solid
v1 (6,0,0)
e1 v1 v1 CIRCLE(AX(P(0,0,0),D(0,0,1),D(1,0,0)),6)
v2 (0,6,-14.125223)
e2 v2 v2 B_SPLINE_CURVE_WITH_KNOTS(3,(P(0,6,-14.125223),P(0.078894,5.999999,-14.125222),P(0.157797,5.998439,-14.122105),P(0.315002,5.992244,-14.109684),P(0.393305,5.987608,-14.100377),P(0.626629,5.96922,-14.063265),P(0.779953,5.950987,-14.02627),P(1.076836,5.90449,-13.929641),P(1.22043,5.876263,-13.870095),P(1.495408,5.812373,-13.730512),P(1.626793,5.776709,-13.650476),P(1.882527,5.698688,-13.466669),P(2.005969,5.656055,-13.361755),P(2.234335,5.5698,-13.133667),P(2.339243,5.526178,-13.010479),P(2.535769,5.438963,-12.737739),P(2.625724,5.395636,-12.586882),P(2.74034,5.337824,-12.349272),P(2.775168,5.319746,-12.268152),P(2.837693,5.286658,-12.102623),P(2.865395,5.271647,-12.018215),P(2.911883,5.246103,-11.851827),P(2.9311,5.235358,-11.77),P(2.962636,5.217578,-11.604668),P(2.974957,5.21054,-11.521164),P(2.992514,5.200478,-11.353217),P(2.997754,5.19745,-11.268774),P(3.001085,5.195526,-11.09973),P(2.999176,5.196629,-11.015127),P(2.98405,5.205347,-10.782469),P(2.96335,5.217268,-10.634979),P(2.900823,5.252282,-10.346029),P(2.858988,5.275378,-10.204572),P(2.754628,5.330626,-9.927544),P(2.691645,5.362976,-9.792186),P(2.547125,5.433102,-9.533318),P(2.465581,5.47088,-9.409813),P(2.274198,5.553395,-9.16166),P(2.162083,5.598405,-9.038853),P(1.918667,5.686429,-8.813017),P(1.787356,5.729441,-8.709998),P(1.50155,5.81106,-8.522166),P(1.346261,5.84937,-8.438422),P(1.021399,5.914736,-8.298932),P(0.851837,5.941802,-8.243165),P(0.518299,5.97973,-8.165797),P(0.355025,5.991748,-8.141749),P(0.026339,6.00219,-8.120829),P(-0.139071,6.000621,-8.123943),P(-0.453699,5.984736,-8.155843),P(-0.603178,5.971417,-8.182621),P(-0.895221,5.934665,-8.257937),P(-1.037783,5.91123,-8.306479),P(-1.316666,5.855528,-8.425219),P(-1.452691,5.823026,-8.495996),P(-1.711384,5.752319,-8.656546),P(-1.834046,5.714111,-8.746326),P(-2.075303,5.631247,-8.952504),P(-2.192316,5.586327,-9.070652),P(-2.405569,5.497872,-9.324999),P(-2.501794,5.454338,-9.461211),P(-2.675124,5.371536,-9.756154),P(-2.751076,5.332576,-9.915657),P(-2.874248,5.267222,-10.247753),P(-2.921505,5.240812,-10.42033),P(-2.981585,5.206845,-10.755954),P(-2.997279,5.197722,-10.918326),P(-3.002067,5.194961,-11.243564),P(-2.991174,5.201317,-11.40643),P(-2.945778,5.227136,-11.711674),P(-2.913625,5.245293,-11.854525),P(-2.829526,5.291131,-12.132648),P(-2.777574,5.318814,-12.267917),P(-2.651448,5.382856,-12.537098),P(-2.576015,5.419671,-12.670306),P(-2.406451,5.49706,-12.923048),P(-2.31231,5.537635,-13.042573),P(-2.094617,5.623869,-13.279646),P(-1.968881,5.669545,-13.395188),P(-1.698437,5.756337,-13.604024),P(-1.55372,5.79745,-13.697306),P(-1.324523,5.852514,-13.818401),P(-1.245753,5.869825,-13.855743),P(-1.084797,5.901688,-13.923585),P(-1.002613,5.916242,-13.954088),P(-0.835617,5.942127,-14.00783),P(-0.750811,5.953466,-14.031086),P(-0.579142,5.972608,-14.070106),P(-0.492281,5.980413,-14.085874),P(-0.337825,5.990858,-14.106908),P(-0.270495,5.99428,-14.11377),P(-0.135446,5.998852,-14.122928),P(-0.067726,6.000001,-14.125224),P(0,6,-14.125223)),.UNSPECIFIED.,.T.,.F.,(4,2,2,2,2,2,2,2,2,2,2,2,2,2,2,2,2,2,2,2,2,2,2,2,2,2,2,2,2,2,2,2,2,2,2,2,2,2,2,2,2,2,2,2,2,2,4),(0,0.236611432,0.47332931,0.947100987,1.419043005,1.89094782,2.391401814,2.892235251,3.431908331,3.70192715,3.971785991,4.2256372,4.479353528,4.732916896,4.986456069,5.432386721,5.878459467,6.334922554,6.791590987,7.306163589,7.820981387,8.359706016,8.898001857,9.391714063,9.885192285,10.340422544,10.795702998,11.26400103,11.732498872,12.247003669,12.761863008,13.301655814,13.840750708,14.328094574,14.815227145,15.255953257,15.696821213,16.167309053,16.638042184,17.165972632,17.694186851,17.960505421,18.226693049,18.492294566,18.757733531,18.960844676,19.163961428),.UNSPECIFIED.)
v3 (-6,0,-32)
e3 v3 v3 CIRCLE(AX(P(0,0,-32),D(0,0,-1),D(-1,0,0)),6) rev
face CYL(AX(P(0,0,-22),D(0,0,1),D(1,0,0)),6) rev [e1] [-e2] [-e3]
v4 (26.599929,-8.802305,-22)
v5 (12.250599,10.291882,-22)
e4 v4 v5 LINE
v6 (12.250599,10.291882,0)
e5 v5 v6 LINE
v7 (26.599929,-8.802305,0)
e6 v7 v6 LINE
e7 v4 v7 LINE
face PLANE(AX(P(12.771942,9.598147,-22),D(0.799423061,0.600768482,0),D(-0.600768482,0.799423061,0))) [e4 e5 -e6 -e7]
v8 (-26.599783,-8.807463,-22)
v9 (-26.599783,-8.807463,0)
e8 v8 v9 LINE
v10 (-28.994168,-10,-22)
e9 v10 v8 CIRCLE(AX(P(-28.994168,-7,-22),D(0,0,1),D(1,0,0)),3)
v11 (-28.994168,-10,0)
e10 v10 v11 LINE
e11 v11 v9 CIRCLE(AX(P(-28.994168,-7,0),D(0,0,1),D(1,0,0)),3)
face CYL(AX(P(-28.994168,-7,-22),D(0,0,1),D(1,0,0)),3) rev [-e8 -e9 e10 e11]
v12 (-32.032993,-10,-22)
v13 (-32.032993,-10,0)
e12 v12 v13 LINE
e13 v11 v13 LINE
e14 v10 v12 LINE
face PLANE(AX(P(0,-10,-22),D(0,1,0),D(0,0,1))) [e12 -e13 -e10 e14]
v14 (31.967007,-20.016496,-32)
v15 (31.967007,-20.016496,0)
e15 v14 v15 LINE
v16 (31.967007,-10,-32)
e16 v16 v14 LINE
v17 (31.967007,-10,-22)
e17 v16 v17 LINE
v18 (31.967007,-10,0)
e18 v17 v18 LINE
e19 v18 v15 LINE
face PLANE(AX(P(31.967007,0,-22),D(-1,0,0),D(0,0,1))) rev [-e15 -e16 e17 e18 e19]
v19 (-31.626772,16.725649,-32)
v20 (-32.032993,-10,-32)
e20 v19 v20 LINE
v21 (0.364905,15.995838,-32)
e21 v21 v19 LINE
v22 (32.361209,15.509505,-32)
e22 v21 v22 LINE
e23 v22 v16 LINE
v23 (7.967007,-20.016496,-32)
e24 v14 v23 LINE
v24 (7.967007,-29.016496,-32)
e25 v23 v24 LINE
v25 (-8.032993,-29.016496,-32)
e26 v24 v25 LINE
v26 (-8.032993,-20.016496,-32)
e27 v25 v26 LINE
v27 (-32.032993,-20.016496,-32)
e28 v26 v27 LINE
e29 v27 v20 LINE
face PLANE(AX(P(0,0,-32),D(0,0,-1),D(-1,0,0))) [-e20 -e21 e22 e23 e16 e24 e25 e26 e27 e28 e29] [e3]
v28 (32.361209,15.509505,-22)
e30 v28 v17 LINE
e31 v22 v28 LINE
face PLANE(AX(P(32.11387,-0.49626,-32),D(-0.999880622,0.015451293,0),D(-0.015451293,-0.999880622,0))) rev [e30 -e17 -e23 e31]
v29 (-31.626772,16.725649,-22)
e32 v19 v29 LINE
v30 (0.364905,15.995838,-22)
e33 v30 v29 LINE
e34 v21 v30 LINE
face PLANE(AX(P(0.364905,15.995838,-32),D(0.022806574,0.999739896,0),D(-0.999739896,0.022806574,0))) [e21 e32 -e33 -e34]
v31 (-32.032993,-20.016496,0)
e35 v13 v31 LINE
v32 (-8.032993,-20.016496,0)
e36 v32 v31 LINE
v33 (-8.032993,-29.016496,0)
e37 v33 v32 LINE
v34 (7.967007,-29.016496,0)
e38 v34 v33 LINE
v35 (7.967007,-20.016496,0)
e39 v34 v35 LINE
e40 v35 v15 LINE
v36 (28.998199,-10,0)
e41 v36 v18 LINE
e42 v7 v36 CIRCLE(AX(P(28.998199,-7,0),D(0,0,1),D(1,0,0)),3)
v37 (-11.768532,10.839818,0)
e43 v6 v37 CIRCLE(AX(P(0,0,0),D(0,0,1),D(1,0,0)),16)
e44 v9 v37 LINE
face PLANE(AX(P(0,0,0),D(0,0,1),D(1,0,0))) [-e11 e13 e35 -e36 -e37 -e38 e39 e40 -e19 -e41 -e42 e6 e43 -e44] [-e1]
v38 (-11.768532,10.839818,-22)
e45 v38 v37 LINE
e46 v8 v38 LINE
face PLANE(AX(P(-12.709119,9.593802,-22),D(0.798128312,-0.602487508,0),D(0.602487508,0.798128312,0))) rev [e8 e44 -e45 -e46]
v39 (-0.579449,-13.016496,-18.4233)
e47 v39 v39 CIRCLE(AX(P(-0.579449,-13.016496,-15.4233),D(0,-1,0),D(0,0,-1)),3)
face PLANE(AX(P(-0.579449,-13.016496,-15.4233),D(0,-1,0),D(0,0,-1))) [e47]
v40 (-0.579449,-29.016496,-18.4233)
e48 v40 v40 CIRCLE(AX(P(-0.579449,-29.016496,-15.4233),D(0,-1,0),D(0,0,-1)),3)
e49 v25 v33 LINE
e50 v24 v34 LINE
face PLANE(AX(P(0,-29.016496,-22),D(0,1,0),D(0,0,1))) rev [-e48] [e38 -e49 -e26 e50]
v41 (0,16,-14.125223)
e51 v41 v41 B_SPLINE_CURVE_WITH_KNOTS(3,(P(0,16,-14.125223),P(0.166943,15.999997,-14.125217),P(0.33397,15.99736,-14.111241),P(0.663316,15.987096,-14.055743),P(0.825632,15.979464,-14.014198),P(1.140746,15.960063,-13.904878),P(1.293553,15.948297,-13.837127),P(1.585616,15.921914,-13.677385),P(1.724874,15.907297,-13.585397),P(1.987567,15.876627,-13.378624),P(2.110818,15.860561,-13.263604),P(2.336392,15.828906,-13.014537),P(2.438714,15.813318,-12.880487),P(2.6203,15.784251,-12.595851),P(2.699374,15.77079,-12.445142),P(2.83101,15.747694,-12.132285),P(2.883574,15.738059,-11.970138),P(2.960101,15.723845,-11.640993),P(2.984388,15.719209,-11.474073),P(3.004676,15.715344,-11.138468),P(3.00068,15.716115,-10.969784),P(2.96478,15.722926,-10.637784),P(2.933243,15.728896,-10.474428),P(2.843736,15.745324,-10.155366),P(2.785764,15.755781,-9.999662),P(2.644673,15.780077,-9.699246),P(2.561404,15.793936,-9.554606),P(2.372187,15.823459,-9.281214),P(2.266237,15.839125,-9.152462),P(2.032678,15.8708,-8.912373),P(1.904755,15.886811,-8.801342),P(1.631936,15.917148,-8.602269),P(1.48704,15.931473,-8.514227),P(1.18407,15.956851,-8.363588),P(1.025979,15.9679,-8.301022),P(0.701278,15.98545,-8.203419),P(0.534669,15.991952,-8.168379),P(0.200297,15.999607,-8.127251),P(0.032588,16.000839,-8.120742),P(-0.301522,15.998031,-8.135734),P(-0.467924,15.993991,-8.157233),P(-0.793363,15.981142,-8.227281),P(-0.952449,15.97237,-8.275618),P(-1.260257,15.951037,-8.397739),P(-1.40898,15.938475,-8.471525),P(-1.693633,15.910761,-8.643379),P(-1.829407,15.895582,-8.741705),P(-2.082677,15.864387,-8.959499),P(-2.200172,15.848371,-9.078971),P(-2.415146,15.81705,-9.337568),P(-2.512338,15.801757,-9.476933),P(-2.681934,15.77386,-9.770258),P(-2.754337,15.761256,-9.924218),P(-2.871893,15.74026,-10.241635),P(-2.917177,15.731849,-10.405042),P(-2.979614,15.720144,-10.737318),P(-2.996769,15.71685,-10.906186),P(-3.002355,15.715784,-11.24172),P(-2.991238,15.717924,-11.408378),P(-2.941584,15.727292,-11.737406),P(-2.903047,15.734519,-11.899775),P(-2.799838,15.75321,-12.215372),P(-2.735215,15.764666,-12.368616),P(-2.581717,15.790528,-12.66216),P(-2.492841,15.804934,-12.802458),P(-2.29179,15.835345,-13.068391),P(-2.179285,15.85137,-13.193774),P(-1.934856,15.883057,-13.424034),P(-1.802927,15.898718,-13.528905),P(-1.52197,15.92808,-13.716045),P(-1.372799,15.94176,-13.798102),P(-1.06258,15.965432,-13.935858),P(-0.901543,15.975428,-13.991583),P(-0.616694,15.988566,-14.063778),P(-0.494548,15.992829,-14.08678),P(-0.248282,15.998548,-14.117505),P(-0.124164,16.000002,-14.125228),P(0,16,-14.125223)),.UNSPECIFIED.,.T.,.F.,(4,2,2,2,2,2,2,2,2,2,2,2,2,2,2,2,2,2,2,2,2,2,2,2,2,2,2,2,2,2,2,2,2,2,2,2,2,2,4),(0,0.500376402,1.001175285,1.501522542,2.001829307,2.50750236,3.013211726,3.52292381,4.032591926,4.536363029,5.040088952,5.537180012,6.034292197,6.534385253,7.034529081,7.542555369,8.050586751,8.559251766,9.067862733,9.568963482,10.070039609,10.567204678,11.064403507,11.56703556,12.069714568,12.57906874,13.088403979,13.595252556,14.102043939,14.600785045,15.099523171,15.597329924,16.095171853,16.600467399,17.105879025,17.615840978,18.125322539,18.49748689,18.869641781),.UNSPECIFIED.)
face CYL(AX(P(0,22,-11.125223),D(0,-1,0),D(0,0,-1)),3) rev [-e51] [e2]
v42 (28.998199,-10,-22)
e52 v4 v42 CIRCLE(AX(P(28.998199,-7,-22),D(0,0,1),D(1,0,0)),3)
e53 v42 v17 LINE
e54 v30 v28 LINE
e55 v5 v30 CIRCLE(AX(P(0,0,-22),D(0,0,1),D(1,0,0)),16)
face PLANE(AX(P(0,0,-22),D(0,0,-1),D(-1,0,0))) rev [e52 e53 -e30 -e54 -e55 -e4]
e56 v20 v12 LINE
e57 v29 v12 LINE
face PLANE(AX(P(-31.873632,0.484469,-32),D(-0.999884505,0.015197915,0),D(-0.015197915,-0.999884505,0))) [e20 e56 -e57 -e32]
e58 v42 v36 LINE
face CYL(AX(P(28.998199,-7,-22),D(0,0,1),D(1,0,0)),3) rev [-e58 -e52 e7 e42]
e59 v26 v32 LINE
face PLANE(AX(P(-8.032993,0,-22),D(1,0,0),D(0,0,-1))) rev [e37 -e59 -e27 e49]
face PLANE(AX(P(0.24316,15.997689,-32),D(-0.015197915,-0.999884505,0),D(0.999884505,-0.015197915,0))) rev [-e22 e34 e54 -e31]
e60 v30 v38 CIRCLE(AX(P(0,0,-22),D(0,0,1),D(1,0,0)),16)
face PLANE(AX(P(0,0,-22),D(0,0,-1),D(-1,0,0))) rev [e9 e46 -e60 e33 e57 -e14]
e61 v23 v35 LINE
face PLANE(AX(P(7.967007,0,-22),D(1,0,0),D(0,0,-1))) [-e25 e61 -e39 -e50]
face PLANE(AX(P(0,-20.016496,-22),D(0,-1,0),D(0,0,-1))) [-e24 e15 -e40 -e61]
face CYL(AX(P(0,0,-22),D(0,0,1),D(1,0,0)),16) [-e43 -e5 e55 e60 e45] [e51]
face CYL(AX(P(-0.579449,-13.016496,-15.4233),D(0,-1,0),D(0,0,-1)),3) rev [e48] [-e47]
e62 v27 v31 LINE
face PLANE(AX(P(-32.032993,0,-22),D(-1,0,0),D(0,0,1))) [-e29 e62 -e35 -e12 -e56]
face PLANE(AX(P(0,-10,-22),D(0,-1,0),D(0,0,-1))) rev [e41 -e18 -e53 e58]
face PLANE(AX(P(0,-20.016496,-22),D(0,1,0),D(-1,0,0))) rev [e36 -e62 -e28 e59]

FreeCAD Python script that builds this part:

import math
import FreeCAD as App
import Part
import Sketcher

V = App.Vector


def add_polygon(sketch, points):
    """Adds a closed chain of lines whose ends are joined by coincident constraints."""
    first, n = sketch.GeometryCount, len(points)
    for a, b in zip(points, points[1:] + points[:1]):
        sketch.addGeometry(Part.LineSegment(App.Vector(*a, 0), App.Vector(*b, 0)), False)
    for i in range(n):
        sketch.addConstraint(Sketcher.Constraint("Coincident", first + i, 2, first + (i + 1) % n, 1))

doc = App.newDocument("Part")
body = doc.addObject("PartDesign::Body", "Body")

# Sketch on XY plane
sketch1 = body.newObject("Sketcher::SketchObject", "Sketch")
sketch1.AttachmentSupport = (doc.getObject("XY_Plane"), [""])
sketch1.MapMode = "FlatFace"
sketch1.addGeometry(Part.ArcOfCircle(Part.Circle(V(0, 0, 0), V(0, 0, 1), 16), math.radians(40), math.radians(90)), False)
sketch1.addGeometry(Part.ArcOfCircle(Part.Circle(V(0, 0, 0), V(0, 0, 1), 16), math.radians(90), math.radians(137)), False)
sketch1.addGeometry(Part.LineSegment(V(-11.8, 10.8, 0), V(-13.6, 8.3, 0)), False)
sketch1.addGeometry(Part.LineSegment(V(-13.6, 8.3, 0), V(-26.6, -8.8, 0)), False)
sketch1.addGeometry(Part.ArcOfCircle(Part.Circle(V(-29, -7, 0), V(0, 0, 1), 3), math.radians(-90), math.radians(-37)), False)
sketch1.addGeometry(Part.LineSegment(V(-29, -10, 0), V(-32, -10, 0)), False)
sketch1.addGeometry(Part.LineSegment(V(-32, -10, 0), V(-32, -20, 0)), False)
sketch1.addGeometry(Part.LineSegment(V(-32, -20, 0), V(-8, -20, 0)), False)
sketch1.addGeometry(Part.LineSegment(V(-8, -20, 0), V(-8, -29, 0)), False)
sketch1.addGeometry(Part.LineSegment(V(-8, -29, 0), V(8, -29, 0)), False)
sketch1.addGeometry(Part.LineSegment(V(8, -29, 0), V(8, -20, 0)), False)
sketch1.addGeometry(Part.LineSegment(V(8, -20, 0), V(32, -20, 0)), False)
sketch1.addGeometry(Part.LineSegment(V(32, -20, 0), V(32, -10, 0)), False)
sketch1.addGeometry(Part.LineSegment(V(32, -10, 0), V(29, -10, 0)), False)
sketch1.addGeometry(Part.ArcOfCircle(Part.Circle(V(29, -7, 0), V(0, 0, 1), 3), math.radians(-143), math.radians(-90)), False)
sketch1.addGeometry(Part.LineSegment(V(26.6, -8.8, 0), V(13.3, 8.9, 0)), False)
sketch1.addGeometry(Part.LineSegment(V(13.3, 8.9, 0), V(12.3, 10.3, 0)), False)
sketch1.addGeometry(Part.Circle(V(0, 0, 0), V(0, 0, 1), 6), False)
sketch1.addConstraint(Sketcher.Constraint("Tangent", 0, 2, 1, 1))
sketch1.addConstraint(Sketcher.Constraint("Coincident", 1, 2, 2, 1))
sketch1.addConstraint(Sketcher.Constraint("Coincident", 2, 2, 3, 1))
sketch1.addConstraint(Sketcher.Constraint("Tangent", 3, 2, 4, 2))
sketch1.addConstraint(Sketcher.Constraint("Tangent", 4, 1, 5, 1))
sketch1.addConstraint(Sketcher.Constraint("Coincident", 5, 2, 6, 1))
sketch1.addConstraint(Sketcher.Constraint("Coincident", 6, 2, 7, 1))
sketch1.addConstraint(Sketcher.Constraint("Coincident", 7, 2, 8, 1))
sketch1.addConstraint(Sketcher.Constraint("Coincident", 8, 2, 9, 1))
sketch1.addConstraint(Sketcher.Constraint("Coincident", 9, 2, 10, 1))
sketch1.addConstraint(Sketcher.Constraint("Coincident", 10, 2, 11, 1))
sketch1.addConstraint(Sketcher.Constraint("Coincident", 11, 2, 12, 1))
sketch1.addConstraint(Sketcher.Constraint("Coincident", 12, 2, 13, 1))
sketch1.addConstraint(Sketcher.Constraint("Tangent", 13, 2, 14, 2))
sketch1.addConstraint(Sketcher.Constraint("Tangent", 14, 1, 15, 1))
sketch1.addConstraint(Sketcher.Constraint("Coincident", 15, 2, 16, 1))
sketch1.addConstraint(Sketcher.Constraint("Coincident", 16, 2, 0, 1))
sketch1.addConstraint(Sketcher.Constraint("Horizontal", 5))
sketch1.addConstraint(Sketcher.Constraint("Vertical", 6))
sketch1.addConstraint(Sketcher.Constraint("Horizontal", 7))
sketch1.addConstraint(Sketcher.Constraint("Vertical", 8))
sketch1.addConstraint(Sketcher.Constraint("Horizontal", 9))
sketch1.addConstraint(Sketcher.Constraint("Vertical", 10))
sketch1.addConstraint(Sketcher.Constraint("Horizontal", 11))
sketch1.addConstraint(Sketcher.Constraint("Vertical", 12))
sketch1.addConstraint(Sketcher.Constraint("Horizontal", 13))
sketch1.addConstraint(Sketcher.Constraint("Coincident", 0, 3, -1, 1))
sketch1.addConstraint(Sketcher.Constraint("Coincident", 17, 3, -1, 1))
sketch1.addConstraint(Sketcher.Constraint("Equal", 0, 1))
sketch1.addConstraint(Sketcher.Constraint("Equal", 4, 14))
sketch1.addConstraint(Sketcher.Constraint("PointOnObject", 0, 2, -2))
sketch1.addConstraint(Sketcher.Constraint("Parallel", 2, 3))
sketch1.addConstraint(Sketcher.Constraint("Parallel", 15, 16))
sketch1.addConstraint(Sketcher.Constraint("Horizontal", 4, 3, 14, 3))
sketch1.addConstraint(Sketcher.Constraint("Horizontal", 7, 2, 10, 2))
sketch1.addConstraint(Sketcher.Constraint("Equal", 7, 11))
sketch1.addConstraint(Sketcher.Constraint("Diameter", 17, 12.0))
sketch1.addConstraint(Sketcher.Constraint("Radius", 0, 16.0))
sketch1.addConstraint(Sketcher.Constraint("Radius", 4, 3.0))
sketch1.addConstraint(Sketcher.Constraint("DistanceX", 7, 1, 7, 2, 24.0))
sketch1.addConstraint(Sketcher.Constraint("DistanceX", 9, 1, 9, 2, 16.0))
sketch1.addConstraint(Sketcher.Constraint("DistanceY", 8, 2, 8, 1, 9.0))
sketch1.addConstraint(Sketcher.Constraint("DistanceY", 4, 3, -1, 1, 7.0))
sketch1.addConstraint(Sketcher.Constraint("DistanceX", 13, 2, 13, 1, 2.968809))
sketch1.addConstraint(Sketcher.Constraint("DistanceX", -1, 1, 14, 3, 28.998199))
sketch1.addConstraint(Sketcher.Constraint("DistanceX", -1, 1, 16, 2, 12.250599))
sketch1.addConstraint(Sketcher.Constraint("Distance", 3, 21.49435))
sketch1.addConstraint(Sketcher.Constraint("Distance", 15, 22.149371))
sketch1.addConstraint(Sketcher.Constraint("DistanceX", 5, 2, 5, 1, 3.038825))
sketch1.addConstraint(Sketcher.Constraint("DistanceY", 6, 2, 6, 1, 10.016496))
sketch1.addConstraint(Sketcher.Constraint("DistanceX", 1, 2, -1, 1, 11.768532))
pad1 = body.newObject("PartDesign::Pad", "Pad")
pad1.Profile = sketch1
pad1.Length = 22
pad1.Reversed = True

# Sketch on XZ plane
sketch2 = body.newObject("Sketcher::SketchObject", "Sketch001")
sketch2.AttachmentSupport = (doc.getObject("XZ_Plane"), [""])
sketch2.MapMode = "FlatFace"
sketch2.addGeometry(Part.Circle(V(0, -11.1, 0), V(0, 0, 1), 3), False)
sketch2.addConstraint(Sketcher.Constraint("PointOnObject", 0, 3, -2))
sketch2.addConstraint(Sketcher.Constraint("Diameter", 0, 6.0))
sketch2.addConstraint(Sketcher.Constraint("DistanceY", 0, 3, -1, 1, 11.125223))
pocket1 = body.newObject("PartDesign::Pocket", "Pocket")
pocket1.Profile = sketch2
pocket1.Length = 22

# Sketch on XY plane
sketch3 = body.newObject("Sketcher::SketchObject", "Sketch002")
sketch3.AttachmentSupport = (doc.getObject("XY_Plane"), [""])
sketch3.MapMode = "FlatFace"
sketch3.AttachmentOffset = App.Placement(V(0, 0, -22), App.Rotation())
add_polygon(sketch3, [(0, 16), (32, 16), (32, -10), (32, -20), (8, -20), (8, -29), (-8, -29), (-8, -20), (-32, -20), (-32, -10), (-32, 17)])  # lines 0-10
sketch3.addGeometry(Part.Circle(V(0, 0, 0), V(0, 0, 1), 6), False)  # 11
sketch3.addConstraint(Sketcher.Constraint("Vertical", 2))
sketch3.addConstraint(Sketcher.Constraint("Horizontal", 3))
sketch3.addConstraint(Sketcher.Constraint("Vertical", 4))
sketch3.addConstraint(Sketcher.Constraint("Horizontal", 5))
sketch3.addConstraint(Sketcher.Constraint("Vertical", 6))
sketch3.addConstraint(Sketcher.Constraint("Horizontal", 7))
sketch3.addConstraint(Sketcher.Constraint("Vertical", 8))
sketch3.addConstraint(Sketcher.Constraint("Coincident", 11, 3, -1, 1))
sketch3.addConstraint(Sketcher.Constraint("Perpendicular", 0, 9))
sketch3.addConstraint(Sketcher.Constraint("Horizontal", 3, 2, 6, 2))
sketch3.addConstraint(Sketcher.Constraint("Horizontal", 1, 2, 8, 2))
sketch3.addConstraint(Sketcher.Constraint("Equal", 3, 7))
sketch3.addConstraint(Sketcher.Constraint("Equal", 0, 10))
sketch3.addConstraint(Sketcher.Constraint("Diameter", 11, 12.0))
sketch3.addConstraint(Sketcher.Constraint("DistanceX", 3, 2, 3, 1, 24.0))
sketch3.addConstraint(Sketcher.Constraint("DistanceX", 5, 2, 5, 1, 16.0))
sketch3.addConstraint(Sketcher.Constraint("DistanceY", 4, 2, 4, 1, 9.0))
sketch3.addConstraint(Sketcher.Constraint("Distance", 0, 32.0))
sketch3.addConstraint(Sketcher.Constraint("DistanceY", 1, 2, -1, 1, 10.0))
sketch3.addConstraint(Sketcher.Constraint("DistanceY", 2, 2, 0, 2, 35.526001))
sketch3.addConstraint(Sketcher.Constraint("DistanceX", 1, 2, 0, 2, 0.394202))
sketch3.addConstraint(Sketcher.Constraint("Distance", 1, 25.512551))
sketch3.addConstraint(Sketcher.Constraint("DistanceX", -1, 1, 0, 2, 32.361209))
sketch3.addConstraint(Sketcher.Constraint("DistanceX", 9, 2, -1, 1, 31.626772))
pad2 = body.newObject("PartDesign::Pad", "Pad001")
pad2.Profile = sketch3
pad2.Length = 10
pad2.Reversed = True

# Sketch on XZ plane
sketch4 = body.newObject("Sketcher::SketchObject", "Sketch003")
sketch4.AttachmentSupport = (doc.getObject("XZ_Plane"), [""])
sketch4.MapMode = "FlatFace"
sketch4.AttachmentOffset = App.Placement(V(0, 0, 29.016496), App.Rotation())
sketch4.addGeometry(Part.Circle(V(-0.6, -15.4, 0), V(0, 0, 1), 3), False)
sketch4.addConstraint(Sketcher.Constraint("Diameter", 0, 6.0))
sketch4.addConstraint(Sketcher.Constraint("DistanceY", 0, 3, -1, 1, 15.4233))
sketch4.addConstraint(Sketcher.Constraint("DistanceX", 0, 3, -1, 1, 0.579449))
pocket2 = body.newObject("PartDesign::Pocket", "Pocket001")
pocket2.Profile = sketch4
pocket2.Length = 16

doc.recompute()
